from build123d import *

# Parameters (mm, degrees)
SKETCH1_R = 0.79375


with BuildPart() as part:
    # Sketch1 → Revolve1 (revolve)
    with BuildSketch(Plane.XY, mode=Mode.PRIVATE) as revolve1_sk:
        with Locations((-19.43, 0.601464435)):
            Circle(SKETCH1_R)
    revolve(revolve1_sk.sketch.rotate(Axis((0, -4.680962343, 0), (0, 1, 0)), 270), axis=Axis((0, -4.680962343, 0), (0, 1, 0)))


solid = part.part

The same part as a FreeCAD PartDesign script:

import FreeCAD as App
import Part
import Sketcher
from FreeCAD import Vector
Q = App.Units.Quantity

doc = App.newDocument("Part")
body = doc.addObject("PartDesign::Body", "Body")

# Sketch on XY plane
sketch1 = body.newObject("Sketcher::SketchObject", "Sketch")
sketch1.AttachmentSupport = (doc.getObject("XY_Plane"), [""])
sketch1.MapMode = "FlatFace"
sketch1.addGeometry(Part.Circle(Vector(-19.4, 0.6, 0), Vector(0, 0, 1), 0.8), False)
sketch1.addConstraint(Sketcher.Constraint("Diameter", 0, Q("0.0625 in")))
sketch1.addConstraint(Sketcher.Constraint("DistanceX", 0, 3, -1, 1, Q("19.43 mm")))
sketch1.addConstraint(Sketcher.Constraint("DistanceY", -1, 1, 0, 3, Q("0.601464 mm")))
revolution = body.newObject("PartDesign::Revolution", "Revolution")
revolution.Profile = sketch1
revolution.ReferenceAxis = (sketch1, ["V_Axis"])
revolution.Angle = 360

doc.recompute()
